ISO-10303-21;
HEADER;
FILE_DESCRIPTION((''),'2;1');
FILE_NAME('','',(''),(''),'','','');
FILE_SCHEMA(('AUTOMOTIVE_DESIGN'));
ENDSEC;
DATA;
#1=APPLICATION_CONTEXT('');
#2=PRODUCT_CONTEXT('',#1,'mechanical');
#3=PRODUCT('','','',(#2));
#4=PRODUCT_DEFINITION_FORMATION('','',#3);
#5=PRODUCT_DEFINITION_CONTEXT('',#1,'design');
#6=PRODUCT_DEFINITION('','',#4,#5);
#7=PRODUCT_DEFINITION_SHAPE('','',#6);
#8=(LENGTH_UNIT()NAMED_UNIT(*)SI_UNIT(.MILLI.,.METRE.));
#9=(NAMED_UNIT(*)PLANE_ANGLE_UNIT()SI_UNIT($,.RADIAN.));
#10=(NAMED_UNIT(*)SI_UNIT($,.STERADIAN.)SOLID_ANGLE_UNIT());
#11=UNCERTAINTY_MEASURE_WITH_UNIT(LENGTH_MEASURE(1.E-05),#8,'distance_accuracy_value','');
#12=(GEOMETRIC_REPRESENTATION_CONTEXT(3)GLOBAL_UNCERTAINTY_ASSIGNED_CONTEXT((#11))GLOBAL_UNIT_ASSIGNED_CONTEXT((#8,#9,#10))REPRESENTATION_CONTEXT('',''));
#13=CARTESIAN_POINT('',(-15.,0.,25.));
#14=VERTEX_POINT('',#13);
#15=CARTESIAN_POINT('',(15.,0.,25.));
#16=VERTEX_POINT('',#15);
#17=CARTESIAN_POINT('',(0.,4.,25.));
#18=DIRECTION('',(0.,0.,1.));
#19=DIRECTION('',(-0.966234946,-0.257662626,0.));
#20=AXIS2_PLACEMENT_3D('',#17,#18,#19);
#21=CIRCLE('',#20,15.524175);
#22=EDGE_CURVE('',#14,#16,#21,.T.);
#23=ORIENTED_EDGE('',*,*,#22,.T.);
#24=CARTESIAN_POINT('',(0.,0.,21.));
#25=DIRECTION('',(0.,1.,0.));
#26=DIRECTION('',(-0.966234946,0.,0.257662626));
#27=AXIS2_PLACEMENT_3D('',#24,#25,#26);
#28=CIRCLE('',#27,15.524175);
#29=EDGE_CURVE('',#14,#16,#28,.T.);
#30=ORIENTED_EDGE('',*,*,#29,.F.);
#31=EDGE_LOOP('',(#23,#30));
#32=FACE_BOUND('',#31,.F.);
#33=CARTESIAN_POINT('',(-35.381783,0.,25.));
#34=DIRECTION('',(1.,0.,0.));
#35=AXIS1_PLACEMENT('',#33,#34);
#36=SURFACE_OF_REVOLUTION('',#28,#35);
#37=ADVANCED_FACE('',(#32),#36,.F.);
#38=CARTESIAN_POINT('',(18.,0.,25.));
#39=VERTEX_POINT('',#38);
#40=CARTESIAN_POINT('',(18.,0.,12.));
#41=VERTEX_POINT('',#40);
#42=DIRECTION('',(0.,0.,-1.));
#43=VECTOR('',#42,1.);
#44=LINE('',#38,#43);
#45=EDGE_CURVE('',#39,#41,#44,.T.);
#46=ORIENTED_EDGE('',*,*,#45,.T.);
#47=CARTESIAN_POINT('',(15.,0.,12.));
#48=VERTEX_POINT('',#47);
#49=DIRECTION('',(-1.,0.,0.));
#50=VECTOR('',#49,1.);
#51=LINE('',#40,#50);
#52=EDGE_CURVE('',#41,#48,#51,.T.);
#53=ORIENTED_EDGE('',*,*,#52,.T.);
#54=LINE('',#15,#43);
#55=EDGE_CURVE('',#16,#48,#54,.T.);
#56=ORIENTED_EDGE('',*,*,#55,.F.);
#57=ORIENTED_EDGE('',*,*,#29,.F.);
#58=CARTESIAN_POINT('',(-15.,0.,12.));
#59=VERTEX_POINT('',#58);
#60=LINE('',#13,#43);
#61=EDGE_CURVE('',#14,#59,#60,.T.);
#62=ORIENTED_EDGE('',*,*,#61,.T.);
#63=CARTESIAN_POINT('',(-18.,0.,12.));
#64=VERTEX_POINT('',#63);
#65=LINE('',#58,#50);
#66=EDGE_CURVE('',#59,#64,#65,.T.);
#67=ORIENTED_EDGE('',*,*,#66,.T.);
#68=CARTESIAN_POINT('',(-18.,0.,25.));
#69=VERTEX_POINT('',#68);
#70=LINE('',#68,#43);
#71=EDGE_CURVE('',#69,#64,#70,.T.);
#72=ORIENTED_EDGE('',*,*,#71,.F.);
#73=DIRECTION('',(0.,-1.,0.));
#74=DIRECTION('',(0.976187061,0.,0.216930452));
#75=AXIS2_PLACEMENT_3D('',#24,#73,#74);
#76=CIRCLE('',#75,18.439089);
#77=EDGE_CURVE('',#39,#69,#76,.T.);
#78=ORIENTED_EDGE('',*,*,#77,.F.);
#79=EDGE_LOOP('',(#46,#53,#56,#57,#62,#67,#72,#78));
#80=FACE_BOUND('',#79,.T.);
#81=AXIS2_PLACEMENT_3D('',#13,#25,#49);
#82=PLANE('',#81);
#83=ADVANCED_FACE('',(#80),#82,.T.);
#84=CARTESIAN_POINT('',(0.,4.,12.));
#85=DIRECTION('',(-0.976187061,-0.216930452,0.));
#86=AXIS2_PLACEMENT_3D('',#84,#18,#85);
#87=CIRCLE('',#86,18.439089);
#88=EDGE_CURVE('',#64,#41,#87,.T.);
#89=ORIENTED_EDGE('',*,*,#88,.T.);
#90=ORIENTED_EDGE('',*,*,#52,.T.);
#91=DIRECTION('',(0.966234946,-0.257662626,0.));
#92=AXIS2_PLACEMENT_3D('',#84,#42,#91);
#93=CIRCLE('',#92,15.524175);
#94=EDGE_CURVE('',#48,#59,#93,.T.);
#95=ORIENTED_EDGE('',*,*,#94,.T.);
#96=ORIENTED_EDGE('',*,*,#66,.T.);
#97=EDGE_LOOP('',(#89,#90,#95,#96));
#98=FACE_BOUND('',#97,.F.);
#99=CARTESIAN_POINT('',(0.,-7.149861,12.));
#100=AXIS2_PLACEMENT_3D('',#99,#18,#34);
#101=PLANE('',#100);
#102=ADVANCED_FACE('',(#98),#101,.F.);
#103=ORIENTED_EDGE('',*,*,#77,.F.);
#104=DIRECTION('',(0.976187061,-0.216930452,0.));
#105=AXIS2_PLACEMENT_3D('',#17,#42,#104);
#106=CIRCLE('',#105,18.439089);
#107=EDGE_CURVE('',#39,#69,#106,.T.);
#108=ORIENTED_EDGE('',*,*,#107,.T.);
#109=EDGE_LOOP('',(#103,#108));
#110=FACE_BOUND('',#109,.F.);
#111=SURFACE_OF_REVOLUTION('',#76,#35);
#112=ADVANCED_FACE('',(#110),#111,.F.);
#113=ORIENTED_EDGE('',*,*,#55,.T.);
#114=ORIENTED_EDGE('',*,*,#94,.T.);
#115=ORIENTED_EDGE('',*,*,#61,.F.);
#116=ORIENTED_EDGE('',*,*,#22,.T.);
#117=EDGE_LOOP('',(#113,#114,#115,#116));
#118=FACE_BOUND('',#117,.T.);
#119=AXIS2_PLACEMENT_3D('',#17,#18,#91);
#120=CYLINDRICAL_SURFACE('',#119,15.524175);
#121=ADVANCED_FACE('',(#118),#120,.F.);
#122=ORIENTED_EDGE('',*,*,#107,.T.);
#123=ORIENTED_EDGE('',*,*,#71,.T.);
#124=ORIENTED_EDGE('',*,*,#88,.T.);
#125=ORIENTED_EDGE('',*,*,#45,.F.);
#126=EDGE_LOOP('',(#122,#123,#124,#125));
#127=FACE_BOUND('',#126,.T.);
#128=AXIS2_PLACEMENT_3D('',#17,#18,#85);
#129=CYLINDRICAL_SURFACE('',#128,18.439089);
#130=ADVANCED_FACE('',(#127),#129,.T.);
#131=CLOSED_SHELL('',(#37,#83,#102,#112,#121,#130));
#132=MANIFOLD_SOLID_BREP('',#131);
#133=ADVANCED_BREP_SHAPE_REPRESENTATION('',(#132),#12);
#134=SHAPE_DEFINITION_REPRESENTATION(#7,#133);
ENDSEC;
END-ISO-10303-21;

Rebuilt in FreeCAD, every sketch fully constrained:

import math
import FreeCAD as App
import Part
import Sketcher

V = App.Vector

doc = App.newDocument("Part")
body = doc.addObject("PartDesign::Body", "Body")

sketch1 = doc.addObject("Sketcher::SketchObject", "Sketch")
body.addObject(sketch1)
sketch1.AttachmentSupport = (doc.XZ_Plane, [""])
sketch1.MapMode = "FlatFace"
sketch1.addGeometry(Part.ArcOfCircle(Part.Circle(V(0, 21, 0), V(0, 0, 1), 18.439089), math.radians(12.528807), math.radians(167.471193)), False)
sketch1.addGeometry(Part.LineSegment(V(-18, 25, 0), V(-15, 25, 0)), False)
sketch1.addGeometry(Part.ArcOfCircle(Part.Circle(V(0, 21, 0), V(0, 0, 1), 15.524175), math.radians(14.931416), math.radians(165.068584)), False)
sketch1.addGeometry(Part.LineSegment(V(15, 25, 0), V(18, 25, 0)), False)
sketch1.addGeometry(Part.LineSegment(V(18, 25, 0), V(-18, 25, 0)), True)
sketch1.addConstraint(Sketcher.Constraint("Coincident", 0, 2, 1, 1))
sketch1.addConstraint(Sketcher.Constraint("Coincident", 1, 2, 2, 2))
sketch1.addConstraint(Sketcher.Constraint("Coincident", 2, 1, 3, 1))
sketch1.addConstraint(Sketcher.Constraint("Coincident", 3, 2, 0, 1))
sketch1.addConstraint(Sketcher.Constraint("Horizontal", 1))
sketch1.addConstraint(Sketcher.Constraint("Horizontal", 3))
sketch1.addConstraint(Sketcher.Constraint("Horizontal", 4))
sketch1.addConstraint(Sketcher.Constraint("Coincident", 2, 3, 0, 3))
sketch1.addConstraint(Sketcher.Constraint("Coincident", 4, 1, 3, 2))
sketch1.addConstraint(Sketcher.Constraint("Coincident", 4, 2, 0, 2))
sketch1.addConstraint(Sketcher.Constraint("PointOnObject", 0, 3, -2))
sketch1.addConstraint(Sketcher.Constraint("DistanceX", 1, 1, 1, 2, 3.0))
sketch1.addConstraint(Sketcher.Constraint("DistanceX", 4, 2, 4, 1, 36.0))
sketch1.addConstraint(Sketcher.Constraint("DistanceY", -1, 1, 0, 3, 21.0))
sketch1.addConstraint(Sketcher.Constraint("DistanceY", -1, 1, 0, 2, 25.0))
revolution = doc.addObject("PartDesign::Revolution", "Revolution")
body.addObject(revolution)
revolution.Profile = sketch1
revolution.ReferenceAxis = (sketch1, ["Axis0"])
revolution.Angle = 90
revolution.Reversed = True

sketch2 = doc.addObject("Sketcher::SketchObject", "Sketch001")
body.addObject(sketch2)
sketch2.AttachmentSupport = (doc.XY_Plane, [""])
sketch2.MapMode = "FlatFace"
sketch2.AttachmentOffset = App.Placement(V(0, 0, 25), App.Rotation())
sketch2.addGeometry(Part.ArcOfCircle(Part.Circle(V(0, 4, 0), V(0, 0, 1), 18.439089), math.radians(-167.471193), math.radians(-12.528807)), False)
sketch2.addGeometry(Part.LineSegment(V(18, 0, 0), V(15, 0, 0)), False)
sketch2.addGeometry(Part.ArcOfCircle(Part.Circle(V(0, 4, 0), V(0, 0, 1), 15.524175), math.radians(-165.068584), math.radians(-14.931416)), False)
sketch2.addGeometry(Part.LineSegment(V(-15, 0, 0), V(-18, 0, 0)), False)
sketch2.addConstraint(Sketcher.Constraint("Coincident", 0, 2, 1, 1))
sketch2.addConstraint(Sketcher.Constraint("Coincident", 1, 2, 2, 2))
sketch2.addConstraint(Sketcher.Constraint("Coincident", 2, 1, 3, 1))
sketch2.addConstraint(Sketcher.Constraint("Coincident", 3, 2, 0, 1))
sketch2.addConstraint(Sketcher.Constraint("Horizontal", 1))
sketch2.addConstraint(Sketcher.Constraint("Horizontal", 3))
sketch2.addConstraint(Sketcher.Constraint("Coincident", 2, 3, 0, 3))
sketch2.addConstraint(Sketcher.Constraint("Symmetric", 1, 2, 2, 1, -1, 1))
sketch2.addConstraint(Sketcher.Constraint("PointOnObject", 0, 3, -2))
sketch2.addConstraint(Sketcher.Constraint("DistanceX", 1, 2, 1, 1, 3.0))
sketch2.addConstraint(Sketcher.Constraint("DistanceY", -1, 1, 0, 3, 4.0))
sketch2.addConstraint(Sketcher.Constraint("DistanceX", -1, 1, 0, 2, 18.0))
pad1 = doc.addObject("PartDesign::Pad", "Pad")
body.addObject(pad1)
pad1.Profile = sketch2
pad1.Length = 13
pad1.Reversed = True

doc.recompute()
